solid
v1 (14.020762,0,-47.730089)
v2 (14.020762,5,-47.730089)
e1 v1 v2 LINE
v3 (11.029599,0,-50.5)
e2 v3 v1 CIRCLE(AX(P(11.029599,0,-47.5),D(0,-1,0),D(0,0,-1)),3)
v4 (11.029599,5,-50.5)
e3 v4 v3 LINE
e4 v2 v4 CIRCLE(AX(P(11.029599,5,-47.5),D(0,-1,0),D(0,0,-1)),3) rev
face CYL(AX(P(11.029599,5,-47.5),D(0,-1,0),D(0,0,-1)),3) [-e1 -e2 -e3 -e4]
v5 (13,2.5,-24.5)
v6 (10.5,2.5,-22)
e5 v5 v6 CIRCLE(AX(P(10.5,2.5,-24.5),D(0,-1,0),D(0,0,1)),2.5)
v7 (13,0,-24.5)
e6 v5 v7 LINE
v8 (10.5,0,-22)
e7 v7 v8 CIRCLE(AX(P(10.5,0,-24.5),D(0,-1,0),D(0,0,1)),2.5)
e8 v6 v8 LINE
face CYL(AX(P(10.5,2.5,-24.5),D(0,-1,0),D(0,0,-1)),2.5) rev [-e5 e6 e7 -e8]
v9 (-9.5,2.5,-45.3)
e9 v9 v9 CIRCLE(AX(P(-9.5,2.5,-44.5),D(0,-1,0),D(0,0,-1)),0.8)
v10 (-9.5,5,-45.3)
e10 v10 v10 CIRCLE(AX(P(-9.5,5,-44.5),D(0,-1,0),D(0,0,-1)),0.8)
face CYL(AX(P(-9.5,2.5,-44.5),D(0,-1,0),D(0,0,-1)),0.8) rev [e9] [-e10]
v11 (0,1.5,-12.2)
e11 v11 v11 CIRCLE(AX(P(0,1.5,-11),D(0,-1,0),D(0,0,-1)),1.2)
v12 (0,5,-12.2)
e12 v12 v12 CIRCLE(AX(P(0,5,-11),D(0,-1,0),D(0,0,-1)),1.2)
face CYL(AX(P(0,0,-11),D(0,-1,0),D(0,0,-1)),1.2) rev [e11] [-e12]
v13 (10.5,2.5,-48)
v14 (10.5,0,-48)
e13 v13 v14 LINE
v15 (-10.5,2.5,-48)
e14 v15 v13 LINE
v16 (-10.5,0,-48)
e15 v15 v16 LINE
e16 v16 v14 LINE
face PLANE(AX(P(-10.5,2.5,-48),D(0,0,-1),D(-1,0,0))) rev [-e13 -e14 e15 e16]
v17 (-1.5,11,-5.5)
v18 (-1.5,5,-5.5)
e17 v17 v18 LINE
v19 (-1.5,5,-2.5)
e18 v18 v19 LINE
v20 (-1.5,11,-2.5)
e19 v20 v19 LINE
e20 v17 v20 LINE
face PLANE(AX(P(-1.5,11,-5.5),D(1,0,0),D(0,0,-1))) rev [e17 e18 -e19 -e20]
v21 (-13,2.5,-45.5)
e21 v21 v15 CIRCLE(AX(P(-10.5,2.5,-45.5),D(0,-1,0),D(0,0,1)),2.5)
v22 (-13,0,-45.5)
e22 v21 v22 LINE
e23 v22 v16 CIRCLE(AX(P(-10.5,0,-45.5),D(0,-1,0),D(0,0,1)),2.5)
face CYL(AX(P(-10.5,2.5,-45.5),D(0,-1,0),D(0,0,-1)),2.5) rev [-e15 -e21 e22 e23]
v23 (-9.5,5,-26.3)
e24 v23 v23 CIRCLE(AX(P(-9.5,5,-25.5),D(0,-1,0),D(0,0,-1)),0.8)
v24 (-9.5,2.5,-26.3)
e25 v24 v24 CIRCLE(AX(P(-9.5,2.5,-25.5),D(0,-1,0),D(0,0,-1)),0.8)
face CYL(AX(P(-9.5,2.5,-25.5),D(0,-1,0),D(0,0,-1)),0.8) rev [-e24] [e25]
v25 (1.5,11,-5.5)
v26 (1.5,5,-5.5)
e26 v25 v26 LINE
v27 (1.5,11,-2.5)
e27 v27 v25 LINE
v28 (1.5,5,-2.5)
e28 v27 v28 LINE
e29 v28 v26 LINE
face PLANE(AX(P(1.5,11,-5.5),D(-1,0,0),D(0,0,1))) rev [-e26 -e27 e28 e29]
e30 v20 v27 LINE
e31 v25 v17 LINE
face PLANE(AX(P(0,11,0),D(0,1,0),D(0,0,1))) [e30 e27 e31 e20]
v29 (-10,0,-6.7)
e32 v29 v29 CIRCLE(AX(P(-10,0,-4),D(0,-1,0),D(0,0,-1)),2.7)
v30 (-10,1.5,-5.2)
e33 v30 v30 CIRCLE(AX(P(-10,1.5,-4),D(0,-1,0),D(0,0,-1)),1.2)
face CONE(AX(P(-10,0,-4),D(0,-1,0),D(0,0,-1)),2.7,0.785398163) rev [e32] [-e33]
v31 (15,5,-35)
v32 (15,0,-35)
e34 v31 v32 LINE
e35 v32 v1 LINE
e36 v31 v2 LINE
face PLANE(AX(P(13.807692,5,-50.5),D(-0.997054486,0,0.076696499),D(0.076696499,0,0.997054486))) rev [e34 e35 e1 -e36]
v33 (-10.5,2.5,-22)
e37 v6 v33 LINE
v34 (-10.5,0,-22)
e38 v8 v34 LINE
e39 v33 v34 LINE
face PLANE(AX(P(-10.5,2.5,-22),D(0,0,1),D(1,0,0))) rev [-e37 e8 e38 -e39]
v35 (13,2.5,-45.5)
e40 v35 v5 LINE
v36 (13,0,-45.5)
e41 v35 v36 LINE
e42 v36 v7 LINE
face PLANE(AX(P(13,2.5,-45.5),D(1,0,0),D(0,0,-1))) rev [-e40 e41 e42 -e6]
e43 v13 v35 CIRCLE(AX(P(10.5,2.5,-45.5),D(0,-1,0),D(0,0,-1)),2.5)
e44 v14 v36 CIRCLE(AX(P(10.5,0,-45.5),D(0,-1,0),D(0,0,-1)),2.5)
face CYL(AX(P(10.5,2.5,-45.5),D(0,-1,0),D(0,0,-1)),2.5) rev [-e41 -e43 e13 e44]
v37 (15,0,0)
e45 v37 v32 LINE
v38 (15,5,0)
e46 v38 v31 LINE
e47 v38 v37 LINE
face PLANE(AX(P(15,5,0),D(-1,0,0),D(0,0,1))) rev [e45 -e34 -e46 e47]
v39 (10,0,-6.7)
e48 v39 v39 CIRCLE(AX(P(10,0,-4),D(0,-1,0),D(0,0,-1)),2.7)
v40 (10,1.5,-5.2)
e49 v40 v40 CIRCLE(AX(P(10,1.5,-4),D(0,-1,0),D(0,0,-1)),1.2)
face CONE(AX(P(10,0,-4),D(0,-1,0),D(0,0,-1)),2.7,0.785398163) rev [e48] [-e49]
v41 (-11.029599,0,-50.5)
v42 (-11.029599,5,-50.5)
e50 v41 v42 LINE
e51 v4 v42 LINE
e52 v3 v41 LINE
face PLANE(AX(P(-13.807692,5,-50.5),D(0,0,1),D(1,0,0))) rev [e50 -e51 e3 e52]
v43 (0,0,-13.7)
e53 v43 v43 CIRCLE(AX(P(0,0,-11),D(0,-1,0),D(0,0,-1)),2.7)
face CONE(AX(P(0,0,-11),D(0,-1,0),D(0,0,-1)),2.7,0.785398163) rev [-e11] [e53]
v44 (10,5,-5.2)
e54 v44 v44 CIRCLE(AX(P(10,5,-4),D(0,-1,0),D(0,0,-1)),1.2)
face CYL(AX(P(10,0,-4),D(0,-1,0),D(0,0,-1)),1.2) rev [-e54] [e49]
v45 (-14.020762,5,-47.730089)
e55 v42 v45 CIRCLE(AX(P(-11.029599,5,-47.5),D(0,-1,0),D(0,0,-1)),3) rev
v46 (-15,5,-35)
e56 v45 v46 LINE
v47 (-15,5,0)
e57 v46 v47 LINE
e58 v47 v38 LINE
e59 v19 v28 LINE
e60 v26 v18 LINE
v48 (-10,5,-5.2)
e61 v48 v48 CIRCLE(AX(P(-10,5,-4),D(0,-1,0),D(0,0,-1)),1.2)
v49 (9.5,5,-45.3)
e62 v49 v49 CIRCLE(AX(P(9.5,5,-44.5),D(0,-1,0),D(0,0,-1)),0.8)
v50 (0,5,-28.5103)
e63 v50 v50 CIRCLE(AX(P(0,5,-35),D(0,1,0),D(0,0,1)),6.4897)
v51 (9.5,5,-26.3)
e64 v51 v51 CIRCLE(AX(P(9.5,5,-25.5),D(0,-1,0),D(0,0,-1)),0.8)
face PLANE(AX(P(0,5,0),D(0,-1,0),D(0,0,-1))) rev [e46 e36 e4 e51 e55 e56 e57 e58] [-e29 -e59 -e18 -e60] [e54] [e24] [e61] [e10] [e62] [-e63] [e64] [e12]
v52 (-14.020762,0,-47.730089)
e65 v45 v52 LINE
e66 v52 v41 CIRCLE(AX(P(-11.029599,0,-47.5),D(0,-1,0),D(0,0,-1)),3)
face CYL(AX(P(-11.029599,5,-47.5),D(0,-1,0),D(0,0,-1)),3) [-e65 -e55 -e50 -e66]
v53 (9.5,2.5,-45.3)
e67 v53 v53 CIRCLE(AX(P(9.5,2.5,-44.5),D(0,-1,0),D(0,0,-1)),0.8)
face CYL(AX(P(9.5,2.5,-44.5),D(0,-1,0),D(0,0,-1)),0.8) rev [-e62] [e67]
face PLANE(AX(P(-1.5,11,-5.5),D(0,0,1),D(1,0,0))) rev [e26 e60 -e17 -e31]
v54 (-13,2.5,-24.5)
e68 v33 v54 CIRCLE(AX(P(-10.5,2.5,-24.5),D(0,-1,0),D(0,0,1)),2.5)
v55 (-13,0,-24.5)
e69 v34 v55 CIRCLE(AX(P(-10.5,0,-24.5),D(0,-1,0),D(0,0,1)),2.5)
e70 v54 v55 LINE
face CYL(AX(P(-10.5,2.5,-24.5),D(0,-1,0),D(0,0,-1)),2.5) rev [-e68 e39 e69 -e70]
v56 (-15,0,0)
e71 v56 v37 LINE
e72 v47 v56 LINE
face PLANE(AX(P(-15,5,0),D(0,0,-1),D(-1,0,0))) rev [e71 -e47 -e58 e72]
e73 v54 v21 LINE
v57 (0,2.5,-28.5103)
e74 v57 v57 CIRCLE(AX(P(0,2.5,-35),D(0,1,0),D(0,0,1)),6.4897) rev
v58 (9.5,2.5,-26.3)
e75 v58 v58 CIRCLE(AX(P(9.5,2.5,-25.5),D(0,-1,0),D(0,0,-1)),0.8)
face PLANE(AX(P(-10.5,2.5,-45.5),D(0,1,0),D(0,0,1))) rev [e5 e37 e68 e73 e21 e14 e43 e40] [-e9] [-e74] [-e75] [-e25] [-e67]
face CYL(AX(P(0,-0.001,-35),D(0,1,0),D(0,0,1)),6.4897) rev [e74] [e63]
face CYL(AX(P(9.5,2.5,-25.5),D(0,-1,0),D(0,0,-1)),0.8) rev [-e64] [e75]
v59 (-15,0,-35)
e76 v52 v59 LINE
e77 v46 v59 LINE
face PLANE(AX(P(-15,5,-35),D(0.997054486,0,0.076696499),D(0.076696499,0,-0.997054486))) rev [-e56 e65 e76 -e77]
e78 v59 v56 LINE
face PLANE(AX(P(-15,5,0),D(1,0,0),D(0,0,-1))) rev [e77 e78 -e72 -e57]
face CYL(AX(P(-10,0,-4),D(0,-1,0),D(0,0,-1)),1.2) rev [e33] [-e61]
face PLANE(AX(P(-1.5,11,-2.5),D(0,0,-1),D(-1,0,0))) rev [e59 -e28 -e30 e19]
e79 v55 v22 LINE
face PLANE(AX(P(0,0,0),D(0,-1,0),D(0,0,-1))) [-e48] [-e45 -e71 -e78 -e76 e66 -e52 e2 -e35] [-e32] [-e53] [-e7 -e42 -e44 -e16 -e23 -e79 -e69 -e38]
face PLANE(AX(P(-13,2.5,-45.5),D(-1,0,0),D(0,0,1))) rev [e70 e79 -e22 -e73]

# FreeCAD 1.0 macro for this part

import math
import FreeCAD as App
import Part
import Sketcher

V = App.Vector


def edges_at(feature, points):
    """Names of the edges that pass closest to the given points."""
    edges = feature.Shape.Edges
    near = lambda p: min(range(len(edges)), key=lambda i: edges[i].distToShape(Part.Vertex(*p))[0])
    return sorted({f"Edge{near(p) + 1}" for p in points})


def add_polygon(sketch, points):
    """Adds a closed chain of lines whose ends are joined by coincident constraints."""
    first, n = sketch.GeometryCount, len(points)
    for a, b in zip(points, points[1:] + points[:1]):
        sketch.addGeometry(Part.LineSegment(App.Vector(*a, 0), App.Vector(*b, 0)), False)
    for i in range(n):
        sketch.addConstraint(Sketcher.Constraint("Coincident", first + i, 2, first + (i + 1) % n, 1))

doc = App.newDocument("Part")
body = doc.addObject("PartDesign::Body", "Body")

sketch1 = doc.addObject("Sketcher::SketchObject", "Sketch")
body.addObject(sketch1)
sketch1.AttachmentSupport = (doc.XZ_Plane, [""])
sketch1.MapMode = "FlatFace"
add_polygon(sketch1, [(-15, 0), (15, 0), (15, -35), (13.807692, -50.5), (-13.807692, -50.5), (-15, -35)])
sketch1.addConstraint(Sketcher.Constraint("Horizontal", 0))
sketch1.addConstraint(Sketcher.Constraint("Vertical", 1))
sketch1.addConstraint(Sketcher.Constraint("Horizontal", 3))
sketch1.addConstraint(Sketcher.Constraint("Vertical", 5))
sketch1.addConstraint(Sketcher.Constraint("Symmetric", 0, 2, 5, 2, -1, 1))
sketch1.addConstraint(Sketcher.Constraint("Horizontal", 1, 2, 4, 2))
sketch1.addConstraint(Sketcher.Constraint("Equal", 2, 4))
sketch1.addConstraint(Sketcher.Constraint("DistanceX", 0, 1, 0, 2, 30.0))
sketch1.addConstraint(Sketcher.Constraint("DistanceY", 1, 2, 1, 1, 35.0))
sketch1.addConstraint(Sketcher.Constraint("DistanceY", 2, 2, -1, 1, 50.5))
sketch1.addConstraint(Sketcher.Constraint("Distance", 2, 15.54579))
pad1 = doc.addObject("PartDesign::Pad", "Pad")
body.addObject(pad1)
pad1.Profile = sketch1
pad1.Length = 5
pad1.Reversed = True

sketch2 = doc.addObject("Sketcher::SketchObject", "Sketch001")
body.addObject(sketch2)
sketch2.AttachmentSupport = (doc.XZ_Plane, [""])
sketch2.MapMode = "FlatFace"
sketch2.AttachmentOffset = App.Placement(V(0, 0, -5), App.Rotation())
sketch2.addGeometry(Part.Circle(V(0, -35, 0), V(0, 0, 1), 6.4897), False)
sketch2.addConstraint(Sketcher.Constraint("PointOnObject", 0, 3, -2))
sketch2.addConstraint(Sketcher.Constraint("DistanceY", 0, 3, -1, 1, 35.0))
sketch2.addConstraint(Sketcher.Constraint("Diameter", 0, 12.9794))
pocket1 = doc.addObject("PartDesign::Pocket", "Pocket")
body.addObject(pocket1)
pocket1.Profile = sketch2
pocket1.Type = "UpToFirst"
pocket1.Reversed = True

sketch3 = doc.addObject("Sketcher::SketchObject", "Sketch002")
body.addObject(sketch3)
sketch3.AttachmentSupport = (doc.XZ_Plane, [""])
sketch3.MapMode = "FlatFace"
sketch3.AttachmentOffset = App.Placement(V(0, 0, -5), App.Rotation())
add_polygon(sketch3, [(-1.5, -5.5), (-1.5, -2.5), (1.5, -2.5), (1.5, -5.5)])
sketch3.addConstraint(Sketcher.Constraint("Vertical", 0))
sketch3.addConstraint(Sketcher.Constraint("Horizontal", 1))
sketch3.addConstraint(Sketcher.Constraint("Vertical", 2))
sketch3.addConstraint(Sketcher.Constraint("Horizontal", 3))
sketch3.addConstraint(Sketcher.Constraint("Equal", 3, 0))
sketch3.addConstraint(Sketcher.Constraint("DistanceX", 1, 1, 1, 2, 3.0))
sketch3.addConstraint(Sketcher.Constraint("DistanceX", 0, 2, -1, 1, 1.5))
sketch3.addConstraint(Sketcher.Constraint("DistanceY", 0, 2, -1, 1, 2.5))
pad2 = doc.addObject("PartDesign::Pad", "Pad001")
body.addObject(pad2)
pad2.Profile = sketch3
pad2.Length = 6
pad2.Reversed = True

sketch4 = doc.addObject("Sketcher::SketchObject", "Sketch003")
body.addObject(sketch4)
sketch4.AttachmentSupport = (doc.XZ_Plane, [""])
sketch4.MapMode = "FlatFace"
sketch4.addGeometry(Part.Circle(V(10, -4, 0), V(0, 0, 1), 1.2), False)
sketch4.addGeometry(Part.Circle(V(-10, -4, 0), V(0, 0, 1), 1.2), False)
sketch4.addGeometry(Part.Circle(V(0, -11, 0), V(0, 0, 1), 1.2), False)
sketch4.addConstraint(Sketcher.Constraint("Equal", 0, 1))
sketch4.addConstraint(Sketcher.Constraint("Equal", 1, 2))
sketch4.addConstraint(Sketcher.Constraint("Symmetric", 0, 3, 1, 3, -2))
sketch4.addConstraint(Sketcher.Constraint("PointOnObject", 2, 3, -2))
sketch4.addConstraint(Sketcher.Constraint("Diameter", 0, 2.4))
sketch4.addConstraint(Sketcher.Constraint("DistanceX", -1, 1, 0, 3, 10.0))
sketch4.addConstraint(Sketcher.Constraint("DistanceY", 0, 3, -1, 1, 4.0))
sketch4.addConstraint(Sketcher.Constraint("DistanceY", 2, 3, -1, 1, 11.0))
doc.recompute()
hole = doc.addObject("PartDesign::Hole", "Hole")
body.addObject(hole)
hole.Profile = sketch4
hole.ThreadType = "None"
hole.Diameter = 2.4
hole.DepthType = "Dimension"
hole.Depth = 5.2
hole.DrillPoint = "Angled"
hole.DrillPointAngle = 118
hole.HoleCutType = "Countersink"
hole.HoleCutDiameter = 5.4
hole.HoleCutCountersinkAngle = 90

sketch5 = doc.addObject("Sketcher::SketchObject", "Sketch004")
body.addObject(sketch5)
sketch5.AttachmentSupport = (doc.XZ_Plane, [""])
sketch5.MapMode = "FlatFace"
sketch5.addGeometry(Part.LineSegment(V(-10.5, -48, 0), V(10.5, -48, 0)), False)
sketch5.addGeometry(Part.ArcOfCircle(Part.Circle(V(10.5, -45.5, 0), V(0, 0, 1), 2.5), math.radians(-90), math.radians(0)), False)
sketch5.addGeometry(Part.LineSegment(V(13, -45.5, 0), V(13, -24.5, 0)), False)
sketch5.addGeometry(Part.ArcOfCircle(Part.Circle(V(10.5, -24.5, 0), V(0, 0, 1), 2.5), math.radians(0), math.radians(90)), False)
sketch5.addGeometry(Part.LineSegment(V(10.5, -22, 0), V(-10.5, -22, 0)), False)
sketch5.addGeometry(Part.ArcOfCircle(Part.Circle(V(-10.5, -24.5, 0), V(0, 0, 1), 2.5), math.radians(90), math.radians(180)), False)
sketch5.addGeometry(Part.LineSegment(V(-13, -24.5, 0), V(-13, -45.5, 0)), False)
sketch5.addGeometry(Part.ArcOfCircle(Part.Circle(V(-10.5, -45.5, 0), V(0, 0, 1), 2.5), math.radians(180), math.radians(270)), False)
sketch5.addConstraint(Sketcher.Constraint("Tangent", 0, 2, 1, 1))
sketch5.addConstraint(Sketcher.Constraint("Tangent", 1, 2, 2, 1))
sketch5.addConstraint(Sketcher.Constraint("Tangent", 2, 2, 3, 1))
sketch5.addConstraint(Sketcher.Constraint("Tangent", 3, 2, 4, 1))
sketch5.addConstraint(Sketcher.Constraint("Tangent", 4, 2, 5, 1))
sketch5.addConstraint(Sketcher.Constraint("Tangent", 5, 2, 6, 1))
sketch5.addConstraint(Sketcher.Constraint("Tangent", 6, 2, 7, 1))
sketch5.addConstraint(Sketcher.Constraint("Tangent", 7, 2, 0, 1))
sketch5.addConstraint(Sketcher.Constraint("Horizontal", 0))
sketch5.addConstraint(Sketcher.Constraint("Vertical", 2))
sketch5.addConstraint(Sketcher.Constraint("Horizontal", 4))
sketch5.addConstraint(Sketcher.Constraint("Vertical", 6))
sketch5.addConstraint(Sketcher.Constraint("Equal", 1, 3))
sketch5.addConstraint(Sketcher.Constraint("Equal", 3, 5))
sketch5.addConstraint(Sketcher.Constraint("Equal", 5, 7))
sketch5.addConstraint(Sketcher.Constraint("Equal", 4, 2))
sketch5.addConstraint(Sketcher.Constraint("Radius", 1, 2.5))
sketch5.addConstraint(Sketcher.Constraint("DistanceX", 0, 1, 0, 2, 21.0))
sketch5.addConstraint(Sketcher.Constraint("DistanceY", 0, 2, -1, 1, 48.0))
sketch5.addConstraint(Sketcher.Constraint("DistanceX", -1, 1, 1, 2, 13.0))
pocket2 = doc.addObject("PartDesign::Pocket", "Pocket001")
body.addObject(pocket2)
pocket2.Profile = sketch5
pocket2.Length = 2.5
doc.recompute()

fillet = doc.addObject("PartDesign::Fillet", "Fillet")
body.addObject(fillet)
fillet.Base = (pocket2, edges_at(pocket2, [(-13.808, 2.5, -50.5), (13.808, 2.5, -50.5)]))
fillet.Radius = 3

sketch6 = doc.addObject("Sketcher::SketchObject", "Sketch005")
body.addObject(sketch6)
sketch6.AttachmentSupport = (doc.XZ_Plane, [""])
sketch6.MapMode = "FlatFace"
sketch6.AttachmentOffset = App.Placement(V(0, 0, -2.5), App.Rotation())
sketch6.addGeometry(Part.Circle(V(-9.5, -25.5, 0), V(0, 0, 1), 0.8), False)
sketch6.addGeometry(Part.Circle(V(-9.5, -44.5, 0), V(0, 0, 1), 0.8), False)
sketch6.addGeometry(Part.Circle(V(9.5, -44.5, 0), V(0, 0, 1), 0.8), False)
sketch6.addGeometry(Part.Circle(V(9.5, -25.5, 0), V(0, 0, 1), 0.8), False)
sketch6.addConstraint(Sketcher.Constraint("Equal", 0, 1))
sketch6.addConstraint(Sketcher.Constraint("Equal", 1, 2))
sketch6.addConstraint(Sketcher.Constraint("Equal", 2, 3))
sketch6.addConstraint(Sketcher.Constraint("Symmetric", 1, 3, 2, 3, -2))
sketch6.addConstraint(Sketcher.Constraint("Symmetric", 0, 3, 3, 3, -2))
sketch6.addConstraint(Sketcher.Constraint("Vertical", 0, 3, 1, 3))
sketch6.addConstraint(Sketcher.Constraint("Diameter", 0, 1.6))
sketch6.addConstraint(Sketcher.Constraint("DistanceY", 1, 3, 0, 3, 19.0))
sketch6.addConstraint(Sketcher.Constraint("DistanceX", 1, 3, 2, 3, 19.0))
sketch6.addConstraint(Sketcher.Constraint("DistanceY", 0, 3, -1, 1, 25.5))
doc.recompute()
hole2 = doc.addObject("PartDesign::Hole", "Hole001")
body.addObject(hole2)
hole2.Profile = sketch6
hole2.ThreadType = "None"
hole2.Diameter = 1.6
hole2.DepthType = "Dimension"
hole2.Depth = 2.5
hole2.DrillPoint = "Flat"

doc.recompute()
